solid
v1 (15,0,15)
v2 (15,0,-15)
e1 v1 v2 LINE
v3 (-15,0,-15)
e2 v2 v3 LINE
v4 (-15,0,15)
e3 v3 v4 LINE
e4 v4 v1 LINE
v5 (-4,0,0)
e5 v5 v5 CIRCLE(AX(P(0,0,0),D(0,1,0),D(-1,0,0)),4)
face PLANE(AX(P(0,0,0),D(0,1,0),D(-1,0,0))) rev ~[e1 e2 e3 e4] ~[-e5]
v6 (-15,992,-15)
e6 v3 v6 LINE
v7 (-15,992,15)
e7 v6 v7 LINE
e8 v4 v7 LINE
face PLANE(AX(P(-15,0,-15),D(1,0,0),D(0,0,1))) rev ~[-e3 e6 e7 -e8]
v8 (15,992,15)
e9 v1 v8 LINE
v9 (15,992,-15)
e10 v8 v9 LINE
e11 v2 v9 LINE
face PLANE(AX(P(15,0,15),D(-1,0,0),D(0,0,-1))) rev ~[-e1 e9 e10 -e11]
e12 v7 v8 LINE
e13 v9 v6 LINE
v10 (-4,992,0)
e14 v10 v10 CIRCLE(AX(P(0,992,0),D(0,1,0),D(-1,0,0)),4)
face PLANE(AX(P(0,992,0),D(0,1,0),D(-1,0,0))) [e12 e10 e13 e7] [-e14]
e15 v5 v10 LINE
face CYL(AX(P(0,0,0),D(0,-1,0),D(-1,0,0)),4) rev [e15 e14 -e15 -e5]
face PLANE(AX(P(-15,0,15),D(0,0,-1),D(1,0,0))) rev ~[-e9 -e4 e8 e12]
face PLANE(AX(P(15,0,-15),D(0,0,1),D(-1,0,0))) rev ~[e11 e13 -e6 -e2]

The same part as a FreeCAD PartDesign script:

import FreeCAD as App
import Part
import Sketcher

V = App.Vector

doc = App.newDocument("Part")
params = doc.addObject("Spreadsheet::Sheet", "Params")
for row, (alias, value) in enumerate([
    ("sketch1_diameter", "8 mm"),
    ("sketch1_width", "30 mm"),
    ("pad1_length", "992 mm"),
], start=1):
    params.set(f"A{row}", alias)
    params.set(f"B{row}", "=" + value)
    params.setAlias(f"B{row}", alias)

body = doc.addObject("PartDesign::Body", "Body")

# Sketch on XZ plane
sketch1 = doc.addObject("Sketcher::SketchObject", "Sketch")
body.addObject(sketch1)
sketch1.AttachmentSupport = (doc.XZ_Plane, [""])
sketch1.MapMode = "FlatFace"
sketch1.addGeometry(Part.LineSegment(V(-15, -15, 0), V(-15, 15, 0)), False)
sketch1.addGeometry(Part.LineSegment(V(-15, 15, 0), V(15, 15, 0)), False)
sketch1.addGeometry(Part.LineSegment(V(15, 15, 0), V(15, -15, 0)), False)
sketch1.addGeometry(Part.LineSegment(V(15, -15, 0), V(-15, -15, 0)), False)
sketch1.addGeometry(Part.Circle(V(0, 0, 0), V(0, 0, 1), 4), False)
sketch1.addConstraint(Sketcher.Constraint("Coincident", 0, 2, 1, 1))
sketch1.addConstraint(Sketcher.Constraint("Coincident", 1, 2, 2, 1))
sketch1.addConstraint(Sketcher.Constraint("Coincident", 2, 2, 3, 1))
sketch1.addConstraint(Sketcher.Constraint("Coincident", 3, 2, 0, 1))
sketch1.addConstraint(Sketcher.Constraint("Vertical", 0))
sketch1.addConstraint(Sketcher.Constraint("Horizontal", 1))
sketch1.addConstraint(Sketcher.Constraint("Vertical", 2))
sketch1.addConstraint(Sketcher.Constraint("Horizontal", 3))
sketch1.addConstraint(Sketcher.Constraint("Coincident", 4, 3, -1, 1))
sketch1.addConstraint(Sketcher.Constraint("Symmetric", 0, 2, 2, 2, -1, 1))
sketch1.addConstraint(Sketcher.Constraint("Equal", 3, 0))
sketch1.addConstraint(Sketcher.Constraint("Diameter", 4, 8.0))
sketch1.addConstraint(Sketcher.Constraint("DistanceX", 1, 1, 1, 2, 30.0))
sketch1.setExpression("Constraints[11]", "Params.sketch1_diameter")
sketch1.setExpression("Constraints[12]", "Params.sketch1_width")
pad1 = doc.addObject("PartDesign::Pad", "Pad")
body.addObject(pad1)
pad1.Profile = sketch1
pad1.setExpression("Length", "Params.pad1_length")
pad1.Reversed = True

doc.recompute()
